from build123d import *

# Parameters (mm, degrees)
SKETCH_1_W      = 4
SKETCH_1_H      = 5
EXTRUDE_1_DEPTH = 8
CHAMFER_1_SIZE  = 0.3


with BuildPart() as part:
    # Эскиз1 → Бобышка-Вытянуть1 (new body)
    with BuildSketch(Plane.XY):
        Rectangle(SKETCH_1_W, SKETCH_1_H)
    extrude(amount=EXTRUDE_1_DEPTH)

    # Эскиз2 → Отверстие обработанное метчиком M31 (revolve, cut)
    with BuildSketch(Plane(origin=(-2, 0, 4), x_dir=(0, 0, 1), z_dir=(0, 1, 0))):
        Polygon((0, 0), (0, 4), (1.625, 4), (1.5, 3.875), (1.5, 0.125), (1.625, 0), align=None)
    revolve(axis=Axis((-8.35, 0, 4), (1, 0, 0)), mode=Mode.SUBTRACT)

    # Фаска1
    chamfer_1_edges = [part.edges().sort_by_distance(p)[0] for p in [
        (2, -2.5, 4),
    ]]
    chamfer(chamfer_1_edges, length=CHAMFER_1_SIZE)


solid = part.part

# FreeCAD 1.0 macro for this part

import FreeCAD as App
import Part
import Sketcher


def edges_at(feature, points):
    """Names of the edges that pass closest to the given points."""
    edges = feature.Shape.Edges
    near = lambda p: min(range(len(edges)), key=lambda i: edges[i].distToShape(Part.Vertex(*p))[0])
    return sorted({f"Edge{near(p) + 1}" for p in points})

doc = App.newDocument("Part")
params = doc.addObject("Spreadsheet::Sheet", "Params")
for row, (alias, value) in enumerate([
    ("sketch1_width", "4 mm"),
    ("sketch1_height", "5 mm"),
    ("pad1_length", "8 mm"),
    ("sketch2_width", "4 mm"),
    ("sketch2_width2", "3.75 mm"),
    ("groove_angle", "360 deg"),
    ("chamfer_size", "0.3 mm"),
], start=1):
    params.set(f"A{row}", alias)
    params.set(f"B{row}", "=" + value)
    params.setAlias(f"B{row}", alias)

body = doc.addObject("PartDesign::Body", "Body")

# Sketch on XY plane
sketch1 = body.newObject("Sketcher::SketchObject", "Sketch")
sketch1.AttachmentSupport = (doc.getObject("XY_Plane"), [""])
sketch1.MapMode = "FlatFace"
sketch1.addGeometry([
    Part.LineSegment(App.Vector(-2, 2.5, 0), App.Vector(-2, -2.5, 0)),
    Part.LineSegment(App.Vector(-2, -2.5, 0), App.Vector(2, -2.5, 0)),
    Part.LineSegment(App.Vector(2, -2.5, 0), App.Vector(2, 2.5, 0)),
    Part.LineSegment(App.Vector(2, 2.5, 0), App.Vector(-2, 2.5, 0)),
], False)
sketch1.addConstraint([
    Sketcher.Constraint("Coincident", 0, 2, 1, 1),
    Sketcher.Constraint("Coincident", 1, 2, 2, 1),
    Sketcher.Constraint("Coincident", 2, 2, 3, 1),
    Sketcher.Constraint("Coincident", 3, 2, 0, 1),
    Sketcher.Constraint("Vertical", 0),
    Sketcher.Constraint("Horizontal", 1),
    Sketcher.Constraint("Vertical", 2),
    Sketcher.Constraint("Horizontal", 3),
    Sketcher.Constraint("Symmetric", 0, 2, 2, 2, -1, 1),
    Sketcher.Constraint("DistanceX", 1, 1, 1, 2, 4.0),
    Sketcher.Constraint("DistanceY", 0, 2, 0, 1, 5.0),
])
sketch1.setExpression("Constraints[9]", "Params.sketch1_width")
sketch1.setExpression("Constraints[10]", "Params.sketch1_height")
pad1 = body.newObject("PartDesign::Pad", "Pad")
pad1.Profile = sketch1
pad1.setExpression("Length", "Params.pad1_length")

# Sketch on XZ plane
sketch2 = body.newObject("Sketcher::SketchObject", "Sketch001")
sketch2.AttachmentSupport = (doc.getObject("XZ_Plane"), [""])
sketch2.MapMode = "FlatFace"
sketch2.addGeometry([
    Part.LineSegment(App.Vector(2, 4, 0), App.Vector(-2, 4, 0)),  # 0
    Part.LineSegment(App.Vector(-2, 4, 0), App.Vector(-2, 5.62, 0)),  # 1
    Part.LineSegment(App.Vector(-2, 5.62, 0), App.Vector(-1.88, 5.5, 0)),  # 2
    Part.LineSegment(App.Vector(-1.88, 5.5, 0), App.Vector(1.88, 5.5, 0)),  # 3
    Part.LineSegment(App.Vector(1.88, 5.5, 0), App.Vector(2, 5.62, 0)),  # 4
    Part.LineSegment(App.Vector(2, 5.62, 0), App.Vector(2, 4, 0)),  # 5
], False)
sketch2.addGeometry(Part.LineSegment(App.Vector(-2, 4, 0), App.Vector(2, 4, 0)), True)  # axis
sketch2.addConstraint([
    Sketcher.Constraint("Coincident", 0, 2, 1, 1),
    Sketcher.Constraint("Coincident", 1, 2, 2, 1),
    Sketcher.Constraint("Coincident", 2, 2, 3, 1),
    Sketcher.Constraint("Coincident", 3, 2, 4, 1),
    Sketcher.Constraint("Coincident", 4, 2, 5, 1),
    Sketcher.Constraint("Coincident", 5, 2, 0, 1),
    Sketcher.Constraint("Horizontal", 0),
    Sketcher.Constraint("Vertical", 1),
    Sketcher.Constraint("Horizontal", 3),
    Sketcher.Constraint("Vertical", 5),
    Sketcher.Constraint("Horizontal", 6),
    Sketcher.Constraint("Coincident", 6, 1, 0, 2),
    Sketcher.Constraint("Symmetric", 1, 2, 4, 2, -2),
    Sketcher.Constraint("Perpendicular", 2, 4),
    Sketcher.Constraint("Vertical", 4, 2, 6, 2),
    Sketcher.Constraint("Equal", 2, 4),
    Sketcher.Constraint("DistanceX", 0, 2, 0, 1, 4.0),
    Sketcher.Constraint("DistanceY", -1, 1, 0, 2, 4.0),
    Sketcher.Constraint("DistanceX", 3, 1, 3, 2, 3.75),
    Sketcher.Constraint("DistanceY", -1, 1, 2, 2, 5.5),
])
sketch2.setExpression("Constraints[16]", "Params.sketch2_width")
sketch2.setExpression("Constraints[18]", "Params.sketch2_width2")
groove = body.newObject("PartDesign::Groove", "Groove")
groove.Profile = sketch2
groove.ReferenceAxis = (sketch2, ["Axis0"])
groove.setExpression("Angle", "Params.groove_angle")
doc.recompute()

chamfer = body.newObject("PartDesign::Chamfer", "Chamfer")
chamfer.Base = (groove, edges_at(groove, [(2, -2.5, 4)]))
chamfer.setExpression("Size", "Params.chamfer_size")

doc.recompute()
